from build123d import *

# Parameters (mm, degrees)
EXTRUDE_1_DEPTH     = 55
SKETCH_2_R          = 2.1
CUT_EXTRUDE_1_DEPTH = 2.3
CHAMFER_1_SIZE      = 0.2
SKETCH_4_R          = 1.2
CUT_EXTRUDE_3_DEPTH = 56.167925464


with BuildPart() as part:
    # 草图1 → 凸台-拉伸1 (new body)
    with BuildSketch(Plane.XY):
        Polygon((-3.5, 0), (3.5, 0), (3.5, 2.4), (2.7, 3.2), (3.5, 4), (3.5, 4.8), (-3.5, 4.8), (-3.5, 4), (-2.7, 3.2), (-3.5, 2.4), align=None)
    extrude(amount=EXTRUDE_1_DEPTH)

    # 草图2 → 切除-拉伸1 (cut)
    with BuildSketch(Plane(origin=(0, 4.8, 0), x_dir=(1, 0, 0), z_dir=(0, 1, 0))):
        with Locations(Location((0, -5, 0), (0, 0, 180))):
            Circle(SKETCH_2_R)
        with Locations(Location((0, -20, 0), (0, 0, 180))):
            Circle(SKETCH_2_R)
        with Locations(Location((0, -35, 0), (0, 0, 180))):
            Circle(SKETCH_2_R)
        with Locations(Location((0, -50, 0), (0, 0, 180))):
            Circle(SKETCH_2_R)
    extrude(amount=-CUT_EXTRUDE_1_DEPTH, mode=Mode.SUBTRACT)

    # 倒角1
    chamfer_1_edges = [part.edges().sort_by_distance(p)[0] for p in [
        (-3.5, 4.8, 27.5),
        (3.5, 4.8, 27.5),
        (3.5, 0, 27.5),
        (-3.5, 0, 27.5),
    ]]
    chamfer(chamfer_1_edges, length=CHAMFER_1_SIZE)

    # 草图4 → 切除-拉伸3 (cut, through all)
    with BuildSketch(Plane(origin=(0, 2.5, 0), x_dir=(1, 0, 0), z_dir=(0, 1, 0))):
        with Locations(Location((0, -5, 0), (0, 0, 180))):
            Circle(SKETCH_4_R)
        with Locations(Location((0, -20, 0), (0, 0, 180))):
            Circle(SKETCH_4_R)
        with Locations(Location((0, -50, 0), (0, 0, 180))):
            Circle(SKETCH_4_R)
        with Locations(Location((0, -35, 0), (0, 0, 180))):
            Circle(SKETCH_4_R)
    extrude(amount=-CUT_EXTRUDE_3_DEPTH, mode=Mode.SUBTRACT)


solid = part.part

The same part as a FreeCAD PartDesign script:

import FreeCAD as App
import Part
import Sketcher


def edges_at(feature, points):
    """Names of the edges that pass closest to the given points."""
    edges = feature.Shape.Edges
    near = lambda p: min(range(len(edges)), key=lambda i: edges[i].distToShape(Part.Vertex(*p))[0])
    return sorted({f"Edge{near(p) + 1}" for p in points})


def add_polygon(sketch, points):
    """Adds a closed chain of lines whose ends are joined by coincident constraints."""
    first, n = sketch.GeometryCount, len(points)
    for a, b in zip(points, points[1:] + points[:1]):
        sketch.addGeometry(Part.LineSegment(App.Vector(*a, 0), App.Vector(*b, 0)), False)
    for i in range(n):
        sketch.addConstraint(Sketcher.Constraint("Coincident", first + i, 2, first + (i + 1) % n, 1))

doc = App.newDocument("Part")
body = doc.addObject("PartDesign::Body", "Body")

sketch1 = body.newObject("Sketcher::SketchObject", "Sketch")
sketch1.AttachmentSupport = (doc.getObject("XY_Plane"), [""])
sketch1.MapMode = "FlatFace"
add_polygon(sketch1, [(-3.5, 0), (3.5, 0), (3.5, 2.4), (2.7, 3.2), (3.5, 4), (3.5, 4.8), (-3.5, 4.8), (-3.5, 4), (-2.7, 3.2), (-3.5, 2.4)])
sketch1.addConstraint([
    Sketcher.Constraint("Horizontal", 0),
    Sketcher.Constraint("Vertical", 1),
    Sketcher.Constraint("Vertical", 4),
    Sketcher.Constraint("Horizontal", 5),
    Sketcher.Constraint("Vertical", 6),
    Sketcher.Constraint("Vertical", 9),
    Sketcher.Constraint("Symmetric", 0, 2, 9, 2, -1, 1),
    Sketcher.Constraint("Symmetric", 3, 2, 6, 2, -2),
    Sketcher.Constraint("Symmetric", 2, 2, 7, 2, -2),
    Sketcher.Constraint("Perpendicular", 2, 3),
    Sketcher.Constraint("Perpendicular", 3, 7),
    Sketcher.Constraint("Perpendicular", 7, 8),
    Sketcher.Constraint("Vertical", 1, 2, 3, 2),
    Sketcher.Constraint("DistanceX", 0, 1, 0, 2, 7.0),
    Sketcher.Constraint("DistanceY", 1, 1, 1, 2, 2.4),
    Sketcher.Constraint("DistanceY", 4, 1, 4, 2, 0.8),
    Sketcher.Constraint("DistanceY", -1, 1, 3, 2, 4.0),
])
pad1 = body.newObject("PartDesign::Pad", "Pad")
pad1.Profile = sketch1
pad1.Length = 55

sketch2 = body.newObject("Sketcher::SketchObject", "Sketch001")
sketch2.AttachmentSupport = (doc.getObject("XZ_Plane"), [""])
sketch2.MapMode = "FlatFace"
sketch2.AttachmentOffset = App.Placement(App.Vector(0, 0, -4.8), App.Rotation())
sketch2.addGeometry([
    Part.Circle(App.Vector(0, 5, 0), App.Vector(0, 0, 1), 2.1),
    Part.Circle(App.Vector(0, 20, 0), App.Vector(0, 0, 1), 2.1),
    Part.Circle(App.Vector(0, 35, 0), App.Vector(0, 0, 1), 2.1),
    Part.Circle(App.Vector(0, 50, 0), App.Vector(0, 0, 1), 2.1),
], False)
sketch2.addConstraint([
    Sketcher.Constraint("Equal", 0, 1),
    Sketcher.Constraint("Equal", 1, 2),
    Sketcher.Constraint("Equal", 2, 3),
    Sketcher.Constraint("PointOnObject", 0, 3, -2),
    Sketcher.Constraint("PointOnObject", 1, 3, -2),
    Sketcher.Constraint("PointOnObject", 2, 3, -2),
    Sketcher.Constraint("PointOnObject", 3, 3, -2),
    Sketcher.Constraint("Diameter", 0, 4.2),
    Sketcher.Constraint("DistanceY", -1, 1, 0, 3, 5.0),
    Sketcher.Constraint("DistanceY", -1, 1, 1, 3, 20.0),
    Sketcher.Constraint("DistanceY", -1, 1, 2, 3, 35.0),
    Sketcher.Constraint("DistanceY", -1, 1, 3, 3, 50.0),
])
pocket1 = body.newObject("PartDesign::Pocket", "Pocket")
pocket1.Profile = sketch2
pocket1.Length = 2.3
pocket1.Reversed = True
doc.recompute()

chamfer = body.newObject("PartDesign::Chamfer", "Chamfer")
chamfer.Base = (pocket1, edges_at(pocket1, [
    (-3.5, 4.8, 27.5),
    (3.5, 4.8, 27.5),
    (3.5, 0, 27.5),
    (-3.5, 0, 27.5),
]))
chamfer.Size = 0.2

sketch3 = body.newObject("Sketcher::SketchObject", "Sketch002")
sketch3.AttachmentSupport = (doc.getObject("XZ_Plane"), [""])
sketch3.MapMode = "FlatFace"
sketch3.AttachmentOffset = App.Placement(App.Vector(0, 0, -2.5), App.Rotation())
sketch3.addGeometry([
    Part.Circle(App.Vector(0, 5, 0), App.Vector(0, 0, 1), 1.2),
    Part.Circle(App.Vector(0, 20, 0), App.Vector(0, 0, 1), 1.2),
    Part.Circle(App.Vector(0, 50, 0), App.Vector(0, 0, 1), 1.2),
    Part.Circle(App.Vector(0, 35, 0), App.Vector(0, 0, 1), 1.2),
], False)
sketch3.addConstraint([
    Sketcher.Constraint("Equal", 0, 1),
    Sketcher.Constraint("Equal", 1, 2),
    Sketcher.Constraint("Equal", 2, 3),
    Sketcher.Constraint("PointOnObject", 0, 3, -2),
    Sketcher.Constraint("PointOnObject", 1, 3, -2),
    Sketcher.Constraint("PointOnObject", 2, 3, -2),
    Sketcher.Constraint("PointOnObject", 3, 3, -2),
    Sketcher.Constraint("Diameter", 0, 2.4),
    Sketcher.Constraint("DistanceY", -1, 1, 0, 3, 5.0),
    Sketcher.Constraint("DistanceY", -1, 1, 1, 3, 20.0),
    Sketcher.Constraint("DistanceY", -1, 1, 2, 3, 50.0),
    Sketcher.Constraint("DistanceY", -1, 1, 3, 3, 35.0),
])
pocket2 = body.newObject("PartDesign::Pocket", "Pocket001")
pocket2.Profile = sketch3
pocket2.Type = "ThroughAll"
pocket2.Reversed = True

doc.recompute()
